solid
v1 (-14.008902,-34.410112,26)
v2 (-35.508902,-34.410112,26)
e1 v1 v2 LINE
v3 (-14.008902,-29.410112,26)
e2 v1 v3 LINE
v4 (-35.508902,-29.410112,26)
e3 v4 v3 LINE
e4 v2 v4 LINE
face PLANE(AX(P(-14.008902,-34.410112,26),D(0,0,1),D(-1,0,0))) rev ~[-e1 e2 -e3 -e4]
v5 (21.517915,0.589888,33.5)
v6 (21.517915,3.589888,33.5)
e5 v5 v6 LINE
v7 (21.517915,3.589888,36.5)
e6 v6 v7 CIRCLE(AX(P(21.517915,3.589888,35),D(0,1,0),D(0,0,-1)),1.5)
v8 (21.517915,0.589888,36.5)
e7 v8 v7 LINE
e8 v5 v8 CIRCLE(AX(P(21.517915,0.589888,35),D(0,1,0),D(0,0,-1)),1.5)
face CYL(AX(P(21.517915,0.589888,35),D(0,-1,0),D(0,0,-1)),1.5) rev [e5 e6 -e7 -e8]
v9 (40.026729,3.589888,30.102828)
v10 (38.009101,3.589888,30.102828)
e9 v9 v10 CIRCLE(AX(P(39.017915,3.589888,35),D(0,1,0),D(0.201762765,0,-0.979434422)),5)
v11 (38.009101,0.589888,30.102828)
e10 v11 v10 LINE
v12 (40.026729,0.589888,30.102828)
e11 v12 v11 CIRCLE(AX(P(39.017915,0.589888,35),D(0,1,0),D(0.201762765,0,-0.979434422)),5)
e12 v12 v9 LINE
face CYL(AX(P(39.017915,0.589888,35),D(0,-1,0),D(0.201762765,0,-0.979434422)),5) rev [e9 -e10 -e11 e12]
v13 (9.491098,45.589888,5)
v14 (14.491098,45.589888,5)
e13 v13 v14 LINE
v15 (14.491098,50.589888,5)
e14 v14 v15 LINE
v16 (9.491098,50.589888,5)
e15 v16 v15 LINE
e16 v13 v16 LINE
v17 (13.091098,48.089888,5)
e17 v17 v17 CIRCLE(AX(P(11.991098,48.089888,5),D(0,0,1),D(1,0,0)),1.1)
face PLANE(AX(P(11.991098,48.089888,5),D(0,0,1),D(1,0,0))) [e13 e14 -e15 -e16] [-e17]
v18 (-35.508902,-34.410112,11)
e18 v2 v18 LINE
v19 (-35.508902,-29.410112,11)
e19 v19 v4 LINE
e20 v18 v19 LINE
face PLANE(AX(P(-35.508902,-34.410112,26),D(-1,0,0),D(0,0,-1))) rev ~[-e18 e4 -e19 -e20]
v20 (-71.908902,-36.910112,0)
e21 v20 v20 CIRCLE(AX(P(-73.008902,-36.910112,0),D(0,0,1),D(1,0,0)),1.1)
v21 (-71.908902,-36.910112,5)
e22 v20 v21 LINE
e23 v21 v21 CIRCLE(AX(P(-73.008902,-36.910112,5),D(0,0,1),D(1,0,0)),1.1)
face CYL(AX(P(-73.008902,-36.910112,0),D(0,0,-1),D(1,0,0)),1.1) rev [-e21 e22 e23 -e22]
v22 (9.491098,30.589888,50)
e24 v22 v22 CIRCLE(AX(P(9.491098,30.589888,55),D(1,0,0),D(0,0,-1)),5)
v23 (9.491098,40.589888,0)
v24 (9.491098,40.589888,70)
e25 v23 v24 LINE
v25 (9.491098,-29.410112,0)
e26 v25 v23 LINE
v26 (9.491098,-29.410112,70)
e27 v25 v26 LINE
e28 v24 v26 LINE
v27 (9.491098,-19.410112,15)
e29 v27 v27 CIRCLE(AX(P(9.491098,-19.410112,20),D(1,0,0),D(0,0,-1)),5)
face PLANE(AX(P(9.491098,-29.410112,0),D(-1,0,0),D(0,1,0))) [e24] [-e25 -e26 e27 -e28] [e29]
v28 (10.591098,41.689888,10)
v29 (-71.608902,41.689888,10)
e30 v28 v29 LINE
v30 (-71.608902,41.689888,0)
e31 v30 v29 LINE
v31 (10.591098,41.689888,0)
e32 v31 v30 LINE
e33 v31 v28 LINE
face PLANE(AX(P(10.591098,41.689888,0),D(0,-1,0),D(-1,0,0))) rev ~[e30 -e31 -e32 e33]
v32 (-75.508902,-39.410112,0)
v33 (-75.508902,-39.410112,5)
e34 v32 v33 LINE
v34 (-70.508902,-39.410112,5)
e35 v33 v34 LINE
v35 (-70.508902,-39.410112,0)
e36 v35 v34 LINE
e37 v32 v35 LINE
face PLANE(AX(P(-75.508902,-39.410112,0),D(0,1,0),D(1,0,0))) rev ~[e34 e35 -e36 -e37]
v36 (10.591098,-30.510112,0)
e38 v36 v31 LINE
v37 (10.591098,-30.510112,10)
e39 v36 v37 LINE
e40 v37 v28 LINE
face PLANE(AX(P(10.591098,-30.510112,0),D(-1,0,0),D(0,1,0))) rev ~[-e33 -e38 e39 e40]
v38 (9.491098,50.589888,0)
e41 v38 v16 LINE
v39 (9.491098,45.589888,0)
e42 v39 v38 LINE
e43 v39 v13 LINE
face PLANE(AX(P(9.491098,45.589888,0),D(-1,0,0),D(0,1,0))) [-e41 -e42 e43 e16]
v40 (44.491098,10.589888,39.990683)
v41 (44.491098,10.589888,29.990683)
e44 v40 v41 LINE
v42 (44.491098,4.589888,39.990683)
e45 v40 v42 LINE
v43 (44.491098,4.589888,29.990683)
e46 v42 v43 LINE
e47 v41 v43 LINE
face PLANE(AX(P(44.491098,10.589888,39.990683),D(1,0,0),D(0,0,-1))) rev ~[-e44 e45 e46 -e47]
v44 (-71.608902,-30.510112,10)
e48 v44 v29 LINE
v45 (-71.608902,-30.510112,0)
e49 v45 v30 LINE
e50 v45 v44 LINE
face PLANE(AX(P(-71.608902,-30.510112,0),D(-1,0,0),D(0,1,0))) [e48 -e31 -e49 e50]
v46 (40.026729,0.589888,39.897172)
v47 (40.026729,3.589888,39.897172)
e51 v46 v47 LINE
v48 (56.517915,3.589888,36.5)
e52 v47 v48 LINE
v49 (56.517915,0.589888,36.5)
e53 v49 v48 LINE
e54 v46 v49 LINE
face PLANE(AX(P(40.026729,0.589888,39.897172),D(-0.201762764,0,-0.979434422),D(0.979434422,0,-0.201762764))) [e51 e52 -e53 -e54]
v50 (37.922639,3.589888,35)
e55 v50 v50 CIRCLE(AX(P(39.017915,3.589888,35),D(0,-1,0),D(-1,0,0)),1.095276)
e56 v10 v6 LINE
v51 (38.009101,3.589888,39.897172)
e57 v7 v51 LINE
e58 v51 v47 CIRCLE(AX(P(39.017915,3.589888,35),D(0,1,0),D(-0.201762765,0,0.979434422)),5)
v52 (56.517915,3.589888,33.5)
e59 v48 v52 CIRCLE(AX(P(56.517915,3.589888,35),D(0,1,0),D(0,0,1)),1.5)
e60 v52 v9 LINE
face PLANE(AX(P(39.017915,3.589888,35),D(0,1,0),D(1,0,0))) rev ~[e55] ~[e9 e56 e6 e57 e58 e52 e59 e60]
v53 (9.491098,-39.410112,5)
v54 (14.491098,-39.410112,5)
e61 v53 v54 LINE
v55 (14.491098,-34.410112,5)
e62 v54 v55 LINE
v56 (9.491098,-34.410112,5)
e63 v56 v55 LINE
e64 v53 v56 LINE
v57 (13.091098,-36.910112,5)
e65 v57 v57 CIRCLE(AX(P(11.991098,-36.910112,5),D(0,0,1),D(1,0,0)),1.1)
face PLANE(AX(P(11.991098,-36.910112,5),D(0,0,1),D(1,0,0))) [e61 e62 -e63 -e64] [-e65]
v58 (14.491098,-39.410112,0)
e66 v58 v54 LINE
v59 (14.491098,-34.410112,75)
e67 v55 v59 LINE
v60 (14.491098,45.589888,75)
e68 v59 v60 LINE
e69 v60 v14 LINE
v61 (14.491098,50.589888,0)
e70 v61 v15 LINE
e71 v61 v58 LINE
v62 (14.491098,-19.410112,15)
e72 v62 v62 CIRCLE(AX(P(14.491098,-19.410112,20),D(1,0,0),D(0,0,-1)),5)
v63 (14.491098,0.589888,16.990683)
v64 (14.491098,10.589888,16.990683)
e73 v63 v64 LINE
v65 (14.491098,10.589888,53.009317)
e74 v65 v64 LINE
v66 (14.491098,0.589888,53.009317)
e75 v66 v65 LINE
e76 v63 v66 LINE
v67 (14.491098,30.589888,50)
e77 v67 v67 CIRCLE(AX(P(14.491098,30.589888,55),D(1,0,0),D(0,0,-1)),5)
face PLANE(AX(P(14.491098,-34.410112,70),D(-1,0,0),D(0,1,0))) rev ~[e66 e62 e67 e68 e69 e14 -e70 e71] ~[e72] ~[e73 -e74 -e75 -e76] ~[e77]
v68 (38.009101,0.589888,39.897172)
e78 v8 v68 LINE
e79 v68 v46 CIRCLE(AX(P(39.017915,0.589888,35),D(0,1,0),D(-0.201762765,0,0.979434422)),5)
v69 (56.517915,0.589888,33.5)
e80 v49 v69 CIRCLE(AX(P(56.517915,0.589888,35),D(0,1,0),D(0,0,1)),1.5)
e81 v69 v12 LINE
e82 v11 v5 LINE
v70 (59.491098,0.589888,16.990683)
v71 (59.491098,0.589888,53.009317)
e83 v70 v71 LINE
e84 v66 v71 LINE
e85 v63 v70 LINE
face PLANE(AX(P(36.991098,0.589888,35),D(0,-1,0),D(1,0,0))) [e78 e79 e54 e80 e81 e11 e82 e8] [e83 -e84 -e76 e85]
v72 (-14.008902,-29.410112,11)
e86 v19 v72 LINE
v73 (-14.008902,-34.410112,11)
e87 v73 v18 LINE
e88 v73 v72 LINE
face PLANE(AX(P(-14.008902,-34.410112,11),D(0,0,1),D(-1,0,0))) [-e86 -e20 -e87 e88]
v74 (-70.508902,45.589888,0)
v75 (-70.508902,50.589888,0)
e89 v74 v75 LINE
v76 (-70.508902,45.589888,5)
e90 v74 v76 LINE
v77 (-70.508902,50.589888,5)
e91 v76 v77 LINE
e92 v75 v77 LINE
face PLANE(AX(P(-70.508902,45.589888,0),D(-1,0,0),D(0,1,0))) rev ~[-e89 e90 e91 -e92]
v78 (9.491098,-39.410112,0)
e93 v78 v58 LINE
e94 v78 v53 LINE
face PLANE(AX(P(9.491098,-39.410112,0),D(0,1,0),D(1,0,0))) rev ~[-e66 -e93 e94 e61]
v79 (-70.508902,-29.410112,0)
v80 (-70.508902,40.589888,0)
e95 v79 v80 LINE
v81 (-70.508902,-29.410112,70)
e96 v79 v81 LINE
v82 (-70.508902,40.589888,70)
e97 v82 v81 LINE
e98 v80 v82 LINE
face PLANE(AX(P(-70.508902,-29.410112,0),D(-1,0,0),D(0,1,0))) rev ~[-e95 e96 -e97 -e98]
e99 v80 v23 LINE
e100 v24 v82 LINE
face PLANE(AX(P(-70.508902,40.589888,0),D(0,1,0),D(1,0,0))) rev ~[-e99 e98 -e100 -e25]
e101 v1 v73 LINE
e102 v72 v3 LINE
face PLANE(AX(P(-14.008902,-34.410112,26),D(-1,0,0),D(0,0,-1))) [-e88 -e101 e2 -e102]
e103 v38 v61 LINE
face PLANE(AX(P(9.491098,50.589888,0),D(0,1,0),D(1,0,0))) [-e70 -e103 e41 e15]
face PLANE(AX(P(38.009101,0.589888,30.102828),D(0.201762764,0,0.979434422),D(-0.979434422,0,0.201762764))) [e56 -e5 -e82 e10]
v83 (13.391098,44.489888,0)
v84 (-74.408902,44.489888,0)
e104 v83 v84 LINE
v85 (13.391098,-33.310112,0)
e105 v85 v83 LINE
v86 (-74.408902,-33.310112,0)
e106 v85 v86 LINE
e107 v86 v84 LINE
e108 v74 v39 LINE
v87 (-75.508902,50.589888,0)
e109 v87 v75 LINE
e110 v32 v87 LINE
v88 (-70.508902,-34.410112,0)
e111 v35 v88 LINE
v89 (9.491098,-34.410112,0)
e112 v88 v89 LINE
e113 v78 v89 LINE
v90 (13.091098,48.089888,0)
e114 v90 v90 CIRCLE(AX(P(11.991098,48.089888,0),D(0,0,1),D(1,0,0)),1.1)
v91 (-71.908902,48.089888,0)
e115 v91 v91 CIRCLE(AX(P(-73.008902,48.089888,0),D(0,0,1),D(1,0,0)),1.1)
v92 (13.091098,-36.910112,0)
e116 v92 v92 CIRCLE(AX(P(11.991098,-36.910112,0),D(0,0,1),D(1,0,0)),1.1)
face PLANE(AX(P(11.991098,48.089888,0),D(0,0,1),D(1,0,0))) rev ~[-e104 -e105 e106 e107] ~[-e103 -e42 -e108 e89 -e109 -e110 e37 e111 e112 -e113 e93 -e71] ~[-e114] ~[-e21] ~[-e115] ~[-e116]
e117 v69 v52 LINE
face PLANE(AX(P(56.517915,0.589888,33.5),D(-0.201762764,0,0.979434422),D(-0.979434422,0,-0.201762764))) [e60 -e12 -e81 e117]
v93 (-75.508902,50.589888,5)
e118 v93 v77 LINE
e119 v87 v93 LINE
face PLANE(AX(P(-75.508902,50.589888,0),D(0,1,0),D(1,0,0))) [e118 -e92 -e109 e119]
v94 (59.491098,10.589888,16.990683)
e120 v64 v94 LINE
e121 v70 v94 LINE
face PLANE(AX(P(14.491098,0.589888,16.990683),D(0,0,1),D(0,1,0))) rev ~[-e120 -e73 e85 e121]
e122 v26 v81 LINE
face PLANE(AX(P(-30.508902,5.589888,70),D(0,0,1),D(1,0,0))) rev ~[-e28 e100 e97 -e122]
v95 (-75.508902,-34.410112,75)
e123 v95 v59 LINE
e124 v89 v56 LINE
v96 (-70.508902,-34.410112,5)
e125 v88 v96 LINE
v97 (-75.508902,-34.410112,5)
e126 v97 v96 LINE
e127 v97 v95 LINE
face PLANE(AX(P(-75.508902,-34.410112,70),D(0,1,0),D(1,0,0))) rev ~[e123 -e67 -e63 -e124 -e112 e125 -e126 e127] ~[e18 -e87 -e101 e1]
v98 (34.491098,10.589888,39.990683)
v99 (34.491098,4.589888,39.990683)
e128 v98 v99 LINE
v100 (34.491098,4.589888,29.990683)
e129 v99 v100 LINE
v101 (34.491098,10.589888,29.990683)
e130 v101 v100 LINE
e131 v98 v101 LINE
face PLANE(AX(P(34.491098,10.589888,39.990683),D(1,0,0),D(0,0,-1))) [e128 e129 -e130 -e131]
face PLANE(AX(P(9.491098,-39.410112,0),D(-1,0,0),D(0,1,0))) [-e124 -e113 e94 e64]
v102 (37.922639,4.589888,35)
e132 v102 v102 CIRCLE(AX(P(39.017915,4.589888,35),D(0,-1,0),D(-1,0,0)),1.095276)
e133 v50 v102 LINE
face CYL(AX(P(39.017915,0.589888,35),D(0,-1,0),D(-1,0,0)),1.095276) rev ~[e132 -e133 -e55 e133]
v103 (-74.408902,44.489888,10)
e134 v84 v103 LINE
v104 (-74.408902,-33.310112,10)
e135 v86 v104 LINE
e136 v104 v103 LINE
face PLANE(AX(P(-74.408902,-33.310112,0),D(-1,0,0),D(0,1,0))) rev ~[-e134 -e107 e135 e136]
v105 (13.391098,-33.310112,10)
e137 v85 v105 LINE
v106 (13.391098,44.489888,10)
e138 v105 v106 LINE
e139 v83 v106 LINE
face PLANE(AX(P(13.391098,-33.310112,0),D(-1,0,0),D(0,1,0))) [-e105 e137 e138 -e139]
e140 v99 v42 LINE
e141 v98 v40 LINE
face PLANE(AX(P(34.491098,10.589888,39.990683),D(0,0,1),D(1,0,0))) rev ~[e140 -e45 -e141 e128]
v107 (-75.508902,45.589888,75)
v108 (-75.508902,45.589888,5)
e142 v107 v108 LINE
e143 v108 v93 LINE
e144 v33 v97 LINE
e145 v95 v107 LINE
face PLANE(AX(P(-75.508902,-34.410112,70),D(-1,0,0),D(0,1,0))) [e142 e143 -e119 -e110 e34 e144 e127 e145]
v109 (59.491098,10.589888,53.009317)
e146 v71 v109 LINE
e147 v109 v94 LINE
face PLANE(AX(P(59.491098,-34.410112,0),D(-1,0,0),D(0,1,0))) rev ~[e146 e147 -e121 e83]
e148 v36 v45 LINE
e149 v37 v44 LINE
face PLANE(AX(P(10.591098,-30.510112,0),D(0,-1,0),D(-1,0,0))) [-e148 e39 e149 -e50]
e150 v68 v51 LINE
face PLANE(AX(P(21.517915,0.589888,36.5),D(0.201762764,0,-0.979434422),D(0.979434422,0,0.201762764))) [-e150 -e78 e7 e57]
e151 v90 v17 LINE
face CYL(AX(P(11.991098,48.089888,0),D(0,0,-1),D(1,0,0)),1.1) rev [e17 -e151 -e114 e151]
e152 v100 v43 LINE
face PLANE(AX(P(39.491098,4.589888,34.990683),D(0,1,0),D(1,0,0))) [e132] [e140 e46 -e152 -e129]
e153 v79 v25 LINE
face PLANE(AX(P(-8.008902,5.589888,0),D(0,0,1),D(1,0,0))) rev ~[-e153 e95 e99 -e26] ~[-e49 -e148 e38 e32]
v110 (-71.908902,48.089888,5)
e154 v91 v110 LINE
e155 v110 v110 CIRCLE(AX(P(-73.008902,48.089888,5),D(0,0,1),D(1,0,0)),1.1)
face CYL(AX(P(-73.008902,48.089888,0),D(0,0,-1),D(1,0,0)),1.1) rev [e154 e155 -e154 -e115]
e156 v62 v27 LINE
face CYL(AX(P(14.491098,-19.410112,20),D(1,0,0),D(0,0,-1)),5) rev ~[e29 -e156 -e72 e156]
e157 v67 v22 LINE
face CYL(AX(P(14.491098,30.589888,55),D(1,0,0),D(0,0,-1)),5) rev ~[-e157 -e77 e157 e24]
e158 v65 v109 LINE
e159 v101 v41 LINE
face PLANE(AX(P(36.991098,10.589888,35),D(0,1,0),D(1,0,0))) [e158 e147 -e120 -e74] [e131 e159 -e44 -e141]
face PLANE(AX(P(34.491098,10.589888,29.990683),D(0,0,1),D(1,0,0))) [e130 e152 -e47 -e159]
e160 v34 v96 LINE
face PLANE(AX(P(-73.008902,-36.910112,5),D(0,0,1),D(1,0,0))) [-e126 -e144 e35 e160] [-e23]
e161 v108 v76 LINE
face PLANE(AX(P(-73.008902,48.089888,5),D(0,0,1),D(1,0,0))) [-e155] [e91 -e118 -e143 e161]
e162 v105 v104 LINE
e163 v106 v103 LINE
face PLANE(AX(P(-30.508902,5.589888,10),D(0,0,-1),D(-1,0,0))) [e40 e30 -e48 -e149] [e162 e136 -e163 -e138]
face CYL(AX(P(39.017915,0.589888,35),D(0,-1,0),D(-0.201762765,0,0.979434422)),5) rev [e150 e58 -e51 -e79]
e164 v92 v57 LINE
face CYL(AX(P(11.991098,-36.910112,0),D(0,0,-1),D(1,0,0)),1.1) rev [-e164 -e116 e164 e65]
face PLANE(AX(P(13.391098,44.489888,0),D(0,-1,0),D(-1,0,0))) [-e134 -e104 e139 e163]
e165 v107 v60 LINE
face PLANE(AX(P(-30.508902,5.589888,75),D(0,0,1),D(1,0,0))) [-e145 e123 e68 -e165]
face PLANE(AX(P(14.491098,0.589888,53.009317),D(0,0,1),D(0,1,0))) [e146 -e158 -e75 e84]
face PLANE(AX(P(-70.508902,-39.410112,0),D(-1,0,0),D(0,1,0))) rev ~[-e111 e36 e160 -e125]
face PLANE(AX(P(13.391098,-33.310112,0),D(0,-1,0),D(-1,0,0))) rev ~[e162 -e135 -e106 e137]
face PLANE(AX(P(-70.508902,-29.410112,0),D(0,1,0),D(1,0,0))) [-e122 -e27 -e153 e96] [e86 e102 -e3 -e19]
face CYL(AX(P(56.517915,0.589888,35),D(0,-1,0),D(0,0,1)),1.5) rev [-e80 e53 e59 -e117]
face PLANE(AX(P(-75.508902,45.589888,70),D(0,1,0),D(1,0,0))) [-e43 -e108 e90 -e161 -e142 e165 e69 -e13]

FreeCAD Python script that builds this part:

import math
import FreeCAD as App
import Part
import Sketcher

V = App.Vector
Q = App.Units.Quantity

doc = App.newDocument("Part")
body = doc.addObject("PartDesign::Body", "Body")

sketch1 = doc.addObject("Sketcher::SketchObject", "Sketch")
body.addObject(sketch1)
sketch1.AttachmentSupport = (doc.XY_Plane, [""])
sketch1.MapMode = "FlatFace"
sketch1.addGeometry([
    Part.LineSegment(V(-76, 46, 0), V(-76, -34, 0)),
    Part.LineSegment(V(-76, -34, 0), V(59, -34, 0)),
    Part.LineSegment(V(59, -34, 0), V(59, 46, 0)),
    Part.LineSegment(V(59, 46, 0), V(-76, 46, 0)),
], False)
sketch1.addConstraint([
    Sketcher.Constraint("Coincident", 0, 2, 1, 1),
    Sketcher.Constraint("Coincident", 1, 2, 2, 1),
    Sketcher.Constraint("Coincident", 2, 2, 3, 1),
    Sketcher.Constraint("Coincident", 3, 2, 0, 1),
    Sketcher.Constraint("Vertical", 0),
    Sketcher.Constraint("Horizontal", 1),
    Sketcher.Constraint("Vertical", 2),
    Sketcher.Constraint("Horizontal", 3),
    Sketcher.Constraint("DistanceX", 1, 1, 1, 2, Q("135 mm")),
    Sketcher.Constraint("DistanceY", 0, 2, 0, 1, Q("80 mm")),
    Sketcher.Constraint("DistanceX", 0, 2, -1, 1, Q("75.508902 mm")),
    Sketcher.Constraint("DistanceY", 0, 2, -1, 1, Q("34.410112 mm")),
])
pad1 = doc.addObject("PartDesign::Pad", "Pad")
body.addObject(pad1)
pad1.Profile = sketch1
pad1.Length = 70

sketch2 = doc.addObject("Sketcher::SketchObject", "Sketch001")
body.addObject(sketch2)
sketch2.AttachmentSupport = (doc.XZ_Plane, [""])
sketch2.MapMode = "FlatFace"
sketch2.AttachmentOffset = App.Placement(V(0, 0, -45.589888), App.Rotation())
sketch2.addGeometry([
    Part.LineSegment(V(14, 0, 0), V(14, 70, 0)),
    Part.LineSegment(V(14, 70, 0), V(59, 70, 0)),
    Part.LineSegment(V(59, 70, 0), V(59, 0, 0)),
    Part.LineSegment(V(59, 0, 0), V(14, 0, 0)),
], False)
sketch2.addConstraint([
    Sketcher.Constraint("Coincident", 0, 2, 1, 1),
    Sketcher.Constraint("Coincident", 1, 2, 2, 1),
    Sketcher.Constraint("Coincident", 2, 2, 3, 1),
    Sketcher.Constraint("Coincident", 3, 2, 0, 1),
    Sketcher.Constraint("Vertical", 0),
    Sketcher.Constraint("Horizontal", 1),
    Sketcher.Constraint("Vertical", 2),
    Sketcher.Constraint("Horizontal", 3),
    Sketcher.Constraint("PointOnObject", 2, 2, -1),
    Sketcher.Constraint("DistanceX", 1, 1, 1, 2, Q("45 mm")),
    Sketcher.Constraint("DistanceY", 0, 1, 0, 2, Q("70 mm")),
    Sketcher.Constraint("DistanceX", -1, 1, 0, 2, Q("14.491098 mm")),
])
pocket1 = doc.addObject("PartDesign::Pocket", "Pocket")
body.addObject(pocket1)
pocket1.Profile = sketch2
pocket1.Length = 35
pocket1.Reversed = True

sketch3 = doc.addObject("Sketcher::SketchObject", "Sketch002")
body.addObject(sketch3)
sketch3.AttachmentSupport = (doc.XZ_Plane, [""])
sketch3.MapMode = "FlatFace"
sketch3.AttachmentOffset = App.Placement(V(0, 0, 34.410112), App.Rotation())
sketch3.addGeometry([
    Part.LineSegment(V(14, 70, 0), V(14, 0, 0)),
    Part.LineSegment(V(14, 0, 0), V(59, 0, 0)),
    Part.LineSegment(V(59, 0, 0), V(59, 70, 0)),
    Part.LineSegment(V(59, 70, 0), V(14, 70, 0)),
], False)
sketch3.addConstraint([
    Sketcher.Constraint("Coincident", 0, 2, 1, 1),
    Sketcher.Constraint("Coincident", 1, 2, 2, 1),
    Sketcher.Constraint("Coincident", 2, 2, 3, 1),
    Sketcher.Constraint("Coincident", 3, 2, 0, 1),
    Sketcher.Constraint("Vertical", 0),
    Sketcher.Constraint("Horizontal", 1),
    Sketcher.Constraint("Vertical", 2),
    Sketcher.Constraint("Horizontal", 3),
    Sketcher.Constraint("PointOnObject", 0, 2, -1),
    Sketcher.Constraint("DistanceX", 1, 1, 1, 2, Q("45 mm")),
    Sketcher.Constraint("DistanceY", 0, 2, 0, 1, Q("70 mm")),
    Sketcher.Constraint("DistanceX", -1, 1, 0, 2, Q("14.491098 mm")),
])
pocket2 = doc.addObject("PartDesign::Pocket", "Pocket001")
body.addObject(pocket2)
pocket2.Profile = sketch3
pocket2.Length = 35

sketch4 = doc.addObject("Sketcher::SketchObject", "Sketch003")
body.addObject(sketch4)
sketch4.AttachmentSupport = (doc.XY_Plane, [""])
sketch4.MapMode = "FlatFace"
sketch4.addGeometry([
    Part.LineSegment(V(-71, 41, 0), V(-71, -29, 0)),
    Part.LineSegment(V(-71, -29, 0), V(9, -29, 0)),
    Part.LineSegment(V(9, -29, 0), V(9, 41, 0)),
    Part.LineSegment(V(9, 41, 0), V(-71, 41, 0)),
], False)
sketch4.addConstraint([
    Sketcher.Constraint("Coincident", 0, 2, 1, 1),
    Sketcher.Constraint("Coincident", 1, 2, 2, 1),
    Sketcher.Constraint("Coincident", 2, 2, 3, 1),
    Sketcher.Constraint("Coincident", 3, 2, 0, 1),
    Sketcher.Constraint("Vertical", 0),
    Sketcher.Constraint("Horizontal", 1),
    Sketcher.Constraint("Vertical", 2),
    Sketcher.Constraint("Horizontal", 3),
    Sketcher.Constraint("DistanceX", 1, 1, 1, 2, Q("80 mm")),
    Sketcher.Constraint("DistanceY", 0, 2, 0, 1, Q("70 mm")),
    Sketcher.Constraint("DistanceX", 0, 2, -1, 1, Q("70.508902 mm")),
    Sketcher.Constraint("DistanceY", 0, 2, -1, 1, Q("29.410112 mm")),
])
pocket3 = doc.addObject("PartDesign::Pocket", "Pocket002")
body.addObject(pocket3)
pocket3.Profile = sketch4
pocket3.Length = 75
pocket3.Reversed = True

sketch5 = doc.addObject("Sketcher::SketchObject", "Sketch004")
body.addObject(sketch5)
sketch5.AttachmentSupport = (doc.XY_Plane, [""])
sketch5.MapMode = "FlatFace"
sketch5.addGeometry([
    Part.LineSegment(V(13, 44, 0), V(13, -33, 0)),
    Part.LineSegment(V(13, -33, 0), V(-74, -33, 0)),
    Part.LineSegment(V(-74, -33, 0), V(-74, 44, 0)),
    Part.LineSegment(V(-74, 44, 0), V(13, 44, 0)),
    Part.LineSegment(V(-72, -31, 0), V(11, -31, 0)),
    Part.LineSegment(V(11, -31, 0), V(11, 42, 0)),
    Part.LineSegment(V(11, 42, 0), V(-72, 42, 0)),
    Part.LineSegment(V(-72, 42, 0), V(-72, -31, 0)),
], False)
sketch5.addConstraint([
    Sketcher.Constraint("Coincident", 0, 2, 1, 1),
    Sketcher.Constraint("Coincident", 1, 2, 2, 1),
    Sketcher.Constraint("Coincident", 2, 2, 3, 1),
    Sketcher.Constraint("Coincident", 3, 2, 0, 1),
    Sketcher.Constraint("Coincident", 4, 2, 5, 1),
    Sketcher.Constraint("Coincident", 5, 2, 6, 1),
    Sketcher.Constraint("Coincident", 6, 2, 7, 1),
    Sketcher.Constraint("Coincident", 7, 2, 4, 1),
    Sketcher.Constraint("Vertical", 0),
    Sketcher.Constraint("Horizontal", 1),
    Sketcher.Constraint("Vertical", 2),
    Sketcher.Constraint("Horizontal", 3),
    Sketcher.Constraint("Horizontal", 4),
    Sketcher.Constraint("Vertical", 5),
    Sketcher.Constraint("Horizontal", 6),
    Sketcher.Constraint("Vertical", 7),
    Sketcher.Constraint("DistanceX", 1, 2, 1, 1, Q("87.8 mm")),
    Sketcher.Constraint("DistanceX", 4, 1, 4, 2, Q("82.2 mm")),
    Sketcher.Constraint("DistanceY", 0, 2, 0, 1, Q("77.8 mm")),
    Sketcher.Constraint("DistanceY", 5, 1, 5, 2, Q("72.2 mm")),
    Sketcher.Constraint("DistanceY", 4, 2, 3, 2, Q("75 mm")),
    Sketcher.Constraint("DistanceX", 1, 2, 4, 2, Q("85 mm")),
    Sketcher.Constraint("DistanceX", -1, 1, 0, 2, Q("13.391098 mm")),
    Sketcher.Constraint("DistanceY", 0, 2, -1, 1, Q("33.310112 mm")),
])
pocket4 = doc.addObject("PartDesign::Pocket", "Pocket003")
body.addObject(pocket4)
pocket4.Profile = sketch5
pocket4.Length = 10
pocket4.Reversed = True

sketch6 = doc.addObject("Sketcher::SketchObject", "Sketch005")
body.addObject(sketch6)
sketch6.AttachmentSupport = (doc.YZ_Plane, [""])
sketch6.MapMode = "FlatFace"
sketch6.AttachmentOffset = App.Placement(V(0, 0, 14.491098), App.Rotation())
sketch6.addGeometry([
    Part.Circle(V(31, 55, 0), V(0, 0, 1), 5),
    Part.Circle(V(-19, 20, 0), V(0, 0, 1), 5),
], False)
sketch6.addConstraint([
    Sketcher.Constraint("Equal", 0, 1),
    Sketcher.Constraint("Diameter", 0, Q("10 mm")),
    Sketcher.Constraint("DistanceY", -1, 1, 0, 3, Q("55 mm")),
    Sketcher.Constraint("DistanceY", -1, 1, 1, 3, Q("20 mm")),
    Sketcher.Constraint("DistanceX", 1, 3, 0, 3, Q("50 mm")),
    Sketcher.Constraint("DistanceX", -1, 1, 0, 3, Q("30.589888 mm")),
])
pocket5 = doc.addObject("PartDesign::Pocket", "Pocket004")
body.addObject(pocket5)
pocket5.Profile = sketch6
pocket5.Length = 32.4

sketch7 = doc.addObject("Sketcher::SketchObject", "Sketch006")
body.addObject(sketch7)
sketch7.AttachmentSupport = (doc.XZ_Plane, [""])
sketch7.MapMode = "FlatFace"
sketch7.AttachmentOffset = App.Placement(V(0, 0, 34.410112), App.Rotation())
sketch7.addGeometry([
    Part.LineSegment(V(-14, 11, 0), V(-14, 26, 0)),
    Part.LineSegment(V(-14, 26, 0), V(-36, 26, 0)),
    Part.LineSegment(V(-36, 26, 0), V(-36, 11, 0)),
    Part.LineSegment(V(-36, 11, 0), V(-14, 11, 0)),
], False)
sketch7.addConstraint([
    Sketcher.Constraint("Coincident", 0, 2, 1, 1),
    Sketcher.Constraint("Coincident", 1, 2, 2, 1),
    Sketcher.Constraint("Coincident", 2, 2, 3, 1),
    Sketcher.Constraint("Coincident", 3, 2, 0, 1),
    Sketcher.Constraint("Vertical", 0),
    Sketcher.Constraint("Horizontal", 1),
    Sketcher.Constraint("Vertical", 2),
    Sketcher.Constraint("Horizontal", 3),
    Sketcher.Constraint("DistanceY", 0, 1, 0, 2, Q("15 mm")),
    Sketcher.Constraint("DistanceX", 1, 2, 1, 1, Q("21.5 mm")),
    Sketcher.Constraint("DistanceY", -1, 1, 0, 2, Q("26 mm")),
    Sketcher.Constraint("DistanceX", 0, 2, -1, 1, Q("14.008902 mm")),
])
pocket6 = doc.addObject("PartDesign::Pocket", "Pocket005")
body.addObject(pocket6)
pocket6.Profile = sketch7
pocket6.Length = 10

sketch8 = doc.addObject("Sketcher::SketchObject", "Sketch007")
body.addObject(sketch8)
sketch8.AttachmentSupport = (doc.YZ_Plane, [""])
sketch8.MapMode = "FlatFace"
sketch8.AttachmentOffset = App.Placement(V(0, 0, 14.491098), App.Rotation())
sketch8.addGeometry([
    Part.LineSegment(V(11, 70, 0), V(1, 70, 0)),
    Part.LineSegment(V(1, 70, 0), V(1, 53, 0)),
    Part.LineSegment(V(1, 53, 0), V(11, 53, 0)),
    Part.LineSegment(V(11, 53, 0), V(11, 70, 0)),
    Part.LineSegment(V(11, 17, 0), V(1, 17, 0)),
    Part.LineSegment(V(1, 17, 0), V(1, 0, 0)),
    Part.LineSegment(V(1, 0, 0), V(11, 0, 0)),
    Part.LineSegment(V(11, 0, 0), V(11, 17, 0)),
], False)
sketch8.addConstraint([
    Sketcher.Constraint("Coincident", 0, 2, 1, 1),
    Sketcher.Constraint("Coincident", 1, 2, 2, 1),
    Sketcher.Constraint("Coincident", 2, 2, 3, 1),
    Sketcher.Constraint("Coincident", 3, 2, 0, 1),
    Sketcher.Constraint("Coincident", 4, 2, 5, 1),
    Sketcher.Constraint("Coincident", 5, 2, 6, 1),
    Sketcher.Constraint("Coincident", 6, 2, 7, 1),
    Sketcher.Constraint("Coincident", 7, 2, 4, 1),
    Sketcher.Constraint("Horizontal", 0),
    Sketcher.Constraint("Vertical", 1),
    Sketcher.Constraint("Horizontal", 2),
    Sketcher.Constraint("Vertical", 3),
    Sketcher.Constraint("Horizontal", 4),
    Sketcher.Constraint("Vertical", 5),
    Sketcher.Constraint("Horizontal", 6),
    Sketcher.Constraint("Vertical", 7),
    Sketcher.Constraint("PointOnObject", 5, 2, -1),
    Sketcher.Constraint("Vertical", 1, 2, 4, 2),
    Sketcher.Constraint("Vertical", 3, 2, 6, 2),
    Sketcher.Constraint("Equal", 3, 5),
    Sketcher.Constraint("DistanceX", 0, 2, 0, 1, Q("10 mm")),
    Sketcher.Constraint("DistanceY", -1, 1, 0, 2, Q("70 mm")),
    Sketcher.Constraint("DistanceY", 1, 2, 1, 1, Q("16.990683 mm")),
    Sketcher.Constraint("DistanceX", -1, 1, 0, 2, Q("0.589888 mm")),
])
pocket7 = doc.addObject("PartDesign::Pocket", "Pocket006")
body.addObject(pocket7)
pocket7.Profile = sketch8
pocket7.Length = 45
pocket7.Reversed = True

sketch9 = doc.addObject("Sketcher::SketchObject", "Sketch008")
body.addObject(sketch9)
sketch9.AttachmentSupport = (doc.XZ_Plane, [""])
sketch9.MapMode = "FlatFace"
sketch9.AttachmentOffset = App.Placement(V(0, 0, -0.589888), App.Rotation())
sketch9.addGeometry([
    Part.LineSegment(V(21.5, 33.5, 0), V(38, 30.1, 0)),
    Part.ArcOfCircle(Part.Circle(V(39, 35, 0), V(0, 0, 1), 5), math.radians(-102), math.radians(-78)),
    Part.LineSegment(V(40, 30.1, 0), V(56.5, 33.5, 0)),
    Part.ArcOfCircle(Part.Circle(V(56.5, 35, 0), V(0, 0, 1), 1.5), math.radians(-90), math.radians(90)),
    Part.LineSegment(V(56.5, 36.5, 0), V(40, 39.9, 0)),
    Part.ArcOfCircle(Part.Circle(V(39, 35, 0), V(0, 0, 1), 5), math.radians(78), math.radians(102)),
    Part.LineSegment(V(38, 39.9, 0), V(21.5, 36.5, 0)),
    Part.ArcOfCircle(Part.Circle(V(21.5, 35, 0), V(0, 0, 1), 1.5), math.radians(90), math.radians(270)),
], False)
sketch9.addConstraint([
    Sketcher.Constraint("Tangent", 0, 2, 1, 1),
    Sketcher.Constraint("Tangent", 1, 2, 2, 1),
    Sketcher.Constraint("Coincident", 2, 2, 3, 1),
    Sketcher.Constraint("Coincident", 3, 2, 4, 1),
    Sketcher.Constraint("Tangent", 4, 2, 5, 1),
    Sketcher.Constraint("Tangent", 5, 2, 6, 1),
    Sketcher.Constraint("Coincident", 6, 2, 7, 1),
    Sketcher.Constraint("Coincident", 7, 2, 0, 1),
    Sketcher.Constraint("Coincident", 5, 3, 1, 3),
    Sketcher.Constraint("Equal", 1, 5),
    Sketcher.Constraint("Equal", 3, 7),
    Sketcher.Constraint("Parallel", 0, 4),
    Sketcher.Constraint("Parallel", 2, 6),
    Sketcher.Constraint("Horizontal", 1, 3, 3, 3),
    Sketcher.Constraint("Horizontal", 5, 3, 7, 3),
    Sketcher.Constraint("Horizontal", 0, 2, 1, 2),
    Sketcher.Constraint("Vertical", 3, 3, 2, 2),
    Sketcher.Constraint("Vertical", 7, 3, 6, 2),
    Sketcher.Constraint("Radius", 1, Q("5 mm")),
    Sketcher.Constraint("Radius", 3, Q("1.5 mm")),
    Sketcher.Constraint("DistanceY", -1, 1, 1, 3, Q("35 mm")),
    Sketcher.Constraint("DistanceX", 7, 3, 3, 3, Q("35 mm")),
    Sketcher.Constraint("DistanceX", -1, 1, 0, 2, Q("38.009101 mm")),
])
pocket8 = doc.addObject("PartDesign::Pocket", "Pocket007")
body.addObject(pocket8)
pocket8.Profile = sketch9
pocket8.Length = 3

sketch10 = doc.addObject("Sketcher::SketchObject", "Sketch009")
body.addObject(sketch10)
sketch10.AttachmentSupport = (doc.XZ_Plane, [""])
sketch10.MapMode = "FlatFace"
sketch10.AttachmentOffset = App.Placement(V(0, 0, -10.589888), App.Rotation())
sketch10.addGeometry([
    Part.LineSegment(V(34, 30, 0), V(34, 40, 0)),
    Part.LineSegment(V(34, 40, 0), V(44, 40, 0)),
    Part.LineSegment(V(44, 40, 0), V(44, 30, 0)),
    Part.LineSegment(V(44, 30, 0), V(34, 30, 0)),
], False)
sketch10.addConstraint([
    Sketcher.Constraint("Coincident", 0, 2, 1, 1),
    Sketcher.Constraint("Coincident", 1, 2, 2, 1),
    Sketcher.Constraint("Coincident", 2, 2, 3, 1),
    Sketcher.Constraint("Coincident", 3, 2, 0, 1),
    Sketcher.Constraint("Vertical", 0),
    Sketcher.Constraint("Horizontal", 1),
    Sketcher.Constraint("Vertical", 2),
    Sketcher.Constraint("Horizontal", 3),
    Sketcher.Constraint("Equal", 3, 0),
    Sketcher.Constraint("DistanceX", 1, 1, 1, 2, Q("10 mm")),
    Sketcher.Constraint("DistanceX", -1, 1, 0, 2, Q("34.491098 mm")),
    Sketcher.Constraint("DistanceY", -1, 1, 0, 2, Q("39.990683 mm")),
])
pocket9 = doc.addObject("PartDesign::Pocket", "Pocket008")
body.addObject(pocket9)
pocket9.Profile = sketch10
pocket9.Length = 6
pocket9.Reversed = True

sketch11 = doc.addObject("Sketcher::SketchObject", "Sketch010")
body.addObject(sketch11)
sketch11.AttachmentSupport = (doc.XZ_Plane, [""])
sketch11.MapMode = "FlatFace"
sketch11.AttachmentOffset = App.Placement(V(0, 0, -0.589888), App.Rotation())
sketch11.addGeometry(Part.Circle(V(39, 35, 0), V(0, 0, 1), 1.1), False)
sketch11.addConstraint([
    Sketcher.Constraint("DistanceY", -1, 1, 0, 3, Q("35 mm")),
    Sketcher.Constraint("Diameter", 0, Q("2.190552 mm")),
    Sketcher.Constraint("DistanceX", -1, 1, 0, 3, Q("39.017915 mm")),
])
pocket10 = doc.addObject("PartDesign::Pocket", "Pocket009")
body.addObject(pocket10)
pocket10.Profile = sketch11
pocket10.Length = 7

sketch12 = doc.addObject("Sketcher::SketchObject", "Sketch011")
body.addObject(sketch12)
sketch12.AttachmentSupport = (doc.XY_Plane, [""])
sketch12.MapMode = "FlatFace"
sketch12.addGeometry([
    Part.LineSegment(V(9.5, 50.6, 0), V(9.5, 45.6, 0)),
    Part.LineSegment(V(9.5, 45.6, 0), V(14.5, 45.6, 0)),
    Part.LineSegment(V(14.5, 45.6, 0), V(14.5, 50.6, 0)),
    Part.LineSegment(V(14.5, 50.6, 0), V(9.5, 50.6, 0)),
    Part.Circle(V(12, 48.1, 0), V(0, 0, 1), 1.1),
    Part.LineSegment(V(-75.5, 50.6, 0), V(-75.5, 45.6, 0)),
    Part.LineSegment(V(-75.5, 45.6, 0), V(-70.5, 45.6, 0)),
    Part.LineSegment(V(-70.5, 45.6, 0), V(-70.5, 50.6, 0)),
    Part.LineSegment(V(-70.5, 50.6, 0), V(-75.5, 50.6, 0)),
    Part.Circle(V(-73, 48.1, 0), V(0, 0, 1), 1.1),
    Part.LineSegment(V(-75.5, -34.4, 0), V(-75.5, -39.4, 0)),
    Part.LineSegment(V(-75.5, -39.4, 0), V(-70.5, -39.4, 0)),
    Part.LineSegment(V(-70.5, -39.4, 0), V(-70.5, -34.4, 0)),
    Part.LineSegment(V(-70.5, -34.4, 0), V(-75.5, -34.4, 0)),
    Part.Circle(V(-73, -36.9, 0), V(0, 0, 1), 1.1),
    Part.LineSegment(V(9.5, -34.4, 0), V(9.5, -39.4, 0)),
    Part.LineSegment(V(9.5, -39.4, 0), V(14.5, -39.4, 0)),
    Part.LineSegment(V(14.5, -39.4, 0), V(14.5, -34.4, 0)),
    Part.LineSegment(V(14.5, -34.4, 0), V(9.5, -34.4, 0)),
    Part.Circle(V(12, -36.9, 0), V(0, 0, 1), 1.1),
], False)
sketch12.addConstraint([
    Sketcher.Constraint("Coincident", 0, 2, 1, 1),
    Sketcher.Constraint("Coincident", 1, 2, 2, 1),
    Sketcher.Constraint("Coincident", 2, 2, 3, 1),
    Sketcher.Constraint("Coincident", 3, 2, 0, 1),
    Sketcher.Constraint("Coincident", 5, 2, 6, 1),
    Sketcher.Constraint("Coincident", 6, 2, 7, 1),
    Sketcher.Constraint("Coincident", 7, 2, 8, 1),
    Sketcher.Constraint("Coincident", 8, 2, 5, 1),
    Sketcher.Constraint("Coincident", 10, 2, 11, 1),
    Sketcher.Constraint("Coincident", 11, 2, 12, 1),
    Sketcher.Constraint("Coincident", 12, 2, 13, 1),
    Sketcher.Constraint("Coincident", 13, 2, 10, 1),
    Sketcher.Constraint("Coincident", 15, 2, 16, 1),
    Sketcher.Constraint("Coincident", 16, 2, 17, 1),
    Sketcher.Constraint("Coincident", 17, 2, 18, 1),
    Sketcher.Constraint("Coincident", 18, 2, 15, 1),
    Sketcher.Constraint("Vertical", 0),
    Sketcher.Constraint("Horizontal", 1),
    Sketcher.Constraint("Vertical", 2),
    Sketcher.Constraint("Horizontal", 3),
    Sketcher.Constraint("Vertical", 5),
    Sketcher.Constraint("Horizontal", 6),
    Sketcher.Constraint("Vertical", 7),
    Sketcher.Constraint("Horizontal", 8),
    Sketcher.Constraint("Vertical", 10),
    Sketcher.Constraint("Horizontal", 11),
    Sketcher.Constraint("Vertical", 12),
    Sketcher.Constraint("Horizontal", 13),
    Sketcher.Constraint("Vertical", 15),
    Sketcher.Constraint("Horizontal", 16),
    Sketcher.Constraint("Vertical", 17),
    Sketcher.Constraint("Horizontal", 18),
    Sketcher.Constraint("Equal", 4, 9),
    Sketcher.Constraint("Equal", 9, 14),
    Sketcher.Constraint("Equal", 14, 19),
    Sketcher.Constraint("Horizontal", 4, 3, 9, 3),
    Sketcher.Constraint("Horizontal", 14, 3, 19, 3),
    Sketcher.Constraint("Horizontal", 1, 2, 5, 2),
    Sketcher.Constraint("Horizontal", 3, 2, 7, 2),
    Sketcher.Constraint("Horizontal", 11, 2, 15, 2),
    Sketcher.Constraint("Horizontal", 13, 2, 17, 2),
    Sketcher.Constraint("Vertical", 9, 3, 14, 3),
    Sketcher.Constraint("Vertical", 4, 3, 19, 3),
    Sketcher.Constraint("Vertical", 8, 2, 10, 2),
    Sketcher.Constraint("Vertical", 7, 2, 11, 2),
    Sketcher.Constraint("Vertical", 3, 2, 15, 2),
    Sketcher.Constraint("Vertical", 2, 2, 16, 2),
    Sketcher.Constraint("Equal", 3, 6),
    Sketcher.Constraint("Equal", 18, 0),
    Sketcher.Constraint("Equal", 7, 10),
    Sketcher.Constraint("Diameter", 4, Q("2.2 mm")),
    Sketcher.Constraint("DistanceX", 1, 1, 1, 2, Q("5 mm")),
    Sketcher.Constraint("DistanceX", 9, 3, 4, 3, Q("85 mm")),
    Sketcher.Constraint("DistanceY", 14, 3, 9, 3, Q("85 mm")),
    Sketcher.Constraint("DistanceX", 5, 2, 0, 2, Q("85 mm")),
    Sketcher.Constraint("DistanceY", 10, 2, 5, 2, Q("85 mm")),
    Sketcher.Constraint("DistanceX", 0, 2, 4, 3, Q("2.5 mm")),
    Sketcher.Constraint("DistanceY", 0, 2, 4, 3, Q("2.5 mm")),
    Sketcher.Constraint("DistanceX", -1, 1, 4, 3, Q("11.991098 mm")),
    Sketcher.Constraint("DistanceY", -1, 1, 4, 3, Q("48.089888 mm")),
])
pad2 = doc.addObject("PartDesign::Pad", "Pad001")
body.addObject(pad2)
pad2.Profile = sketch12
pad2.Length = 5

sketch13 = doc.addObject("Sketcher::SketchObject", "Sketch012")
body.addObject(sketch13)
sketch13.AttachmentSupport = (doc.XY_Plane, [""])
sketch13.MapMode = "FlatFace"
sketch13.AttachmentOffset = App.Placement(V(0, 0, 70), App.Rotation())
sketch13.addGeometry([
    Part.LineSegment(V(-76, 46, 0), V(-76, -34, 0)),
    Part.LineSegment(V(-76, -34, 0), V(14, -34, 0)),
    Part.LineSegment(V(14, -34, 0), V(14, 46, 0)),
    Part.LineSegment(V(14, 46, 0), V(-76, 46, 0)),
], False)
sketch13.addConstraint([
    Sketcher.Constraint("Coincident", 0, 2, 1, 1),
    Sketcher.Constraint("Coincident", 1, 2, 2, 1),
    Sketcher.Constraint("Coincident", 2, 2, 3, 1),
    Sketcher.Constraint("Coincident", 3, 2, 0, 1),
    Sketcher.Constraint("Vertical", 0),
    Sketcher.Constraint("Horizontal", 1),
    Sketcher.Constraint("Vertical", 2),
    Sketcher.Constraint("Horizontal", 3),
    Sketcher.Constraint("DistanceX", 1, 1, 1, 2, Q("90 mm")),
    Sketcher.Constraint("DistanceY", 0, 2, 0, 1, Q("80 mm")),
    Sketcher.Constraint("DistanceX", 0, 2, -1, 1, Q("75.508902 mm")),
    Sketcher.Constraint("DistanceY", 0, 2, -1, 1, Q("34.410112 mm")),
])
pad3 = doc.addObject("PartDesign::Pad", "Pad002")
body.addObject(pad3)
pad3.Profile = sketch13
pad3.Length = 5

doc.recompute()
